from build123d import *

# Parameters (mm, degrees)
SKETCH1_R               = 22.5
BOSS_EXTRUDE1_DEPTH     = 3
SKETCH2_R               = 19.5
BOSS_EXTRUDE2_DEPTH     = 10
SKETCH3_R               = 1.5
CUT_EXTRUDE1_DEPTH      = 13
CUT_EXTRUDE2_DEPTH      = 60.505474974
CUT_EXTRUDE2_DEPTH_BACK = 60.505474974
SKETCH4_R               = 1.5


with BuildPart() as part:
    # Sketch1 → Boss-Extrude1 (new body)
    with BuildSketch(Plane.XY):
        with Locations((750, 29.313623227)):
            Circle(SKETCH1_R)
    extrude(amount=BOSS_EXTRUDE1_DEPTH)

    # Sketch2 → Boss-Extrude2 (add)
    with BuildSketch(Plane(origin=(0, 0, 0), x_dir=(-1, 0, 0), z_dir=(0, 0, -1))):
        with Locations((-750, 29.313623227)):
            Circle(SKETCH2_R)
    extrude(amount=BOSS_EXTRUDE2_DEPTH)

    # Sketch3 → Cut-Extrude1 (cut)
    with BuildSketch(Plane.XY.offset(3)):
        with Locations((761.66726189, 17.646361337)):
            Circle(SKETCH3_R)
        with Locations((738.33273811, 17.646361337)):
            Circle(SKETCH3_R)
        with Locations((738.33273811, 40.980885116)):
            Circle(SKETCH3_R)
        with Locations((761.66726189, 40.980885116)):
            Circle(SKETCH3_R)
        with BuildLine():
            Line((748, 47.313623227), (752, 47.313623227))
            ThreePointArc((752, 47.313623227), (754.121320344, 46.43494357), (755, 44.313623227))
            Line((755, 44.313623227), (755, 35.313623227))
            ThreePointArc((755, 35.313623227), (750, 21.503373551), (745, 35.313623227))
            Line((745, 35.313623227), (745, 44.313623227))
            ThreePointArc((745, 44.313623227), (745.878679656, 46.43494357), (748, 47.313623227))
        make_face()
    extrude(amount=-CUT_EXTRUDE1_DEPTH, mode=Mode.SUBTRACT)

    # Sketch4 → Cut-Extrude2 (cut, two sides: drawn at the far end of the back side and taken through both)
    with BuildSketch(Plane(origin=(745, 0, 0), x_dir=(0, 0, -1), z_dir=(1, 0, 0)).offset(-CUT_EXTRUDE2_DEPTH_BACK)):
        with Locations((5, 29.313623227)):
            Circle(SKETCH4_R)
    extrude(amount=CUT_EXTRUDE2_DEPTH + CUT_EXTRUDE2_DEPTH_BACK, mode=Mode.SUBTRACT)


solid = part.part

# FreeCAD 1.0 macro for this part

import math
import FreeCAD as App
import Part
import Sketcher
Q = App.Units.Quantity

doc = App.newDocument("Part")
body = doc.addObject("PartDesign::Body", "Body")

sketch1 = doc.addObject("Sketcher::SketchObject", "Sketch")
body.addObject(sketch1)
sketch1.AttachmentSupport = (doc.XY_Plane, [""])
sketch1.MapMode = "FlatFace"
sketch1.addGeometry(Part.Circle(App.Vector(750, 29, 0), App.Vector(0, 0, 1), 22), False)
sketch1.addConstraint([
    Sketcher.Constraint("Diameter", 0, Q("45 mm")),
    Sketcher.Constraint("DistanceX", -1, 1, 0, 3, Q("750 mm")),
    Sketcher.Constraint("DistanceY", -1, 1, 0, 3, Q("29.313623 mm")),
])
pad1 = doc.addObject("PartDesign::Pad", "Pad")
body.addObject(pad1)
pad1.Profile = sketch1
pad1.Length = 3

sketch2 = doc.addObject("Sketcher::SketchObject", "Sketch001")
body.addObject(sketch2)
sketch2.AttachmentSupport = (doc.XY_Plane, [""])
sketch2.MapMode = "FlatFace"
sketch2.addGeometry(Part.Circle(App.Vector(750, 29, 0), App.Vector(0, 0, 1), 20), False)
sketch2.addConstraint([
    Sketcher.Constraint("Diameter", 0, Q("39 mm")),
    Sketcher.Constraint("DistanceX", -1, 1, 0, 3, Q("750 mm")),
    Sketcher.Constraint("DistanceY", -1, 1, 0, 3, Q("29.313623 mm")),
])
pad2 = doc.addObject("PartDesign::Pad", "Pad001")
body.addObject(pad2)
pad2.Profile = sketch2
pad2.Length = 10
pad2.Reversed = True

sketch3 = doc.addObject("Sketcher::SketchObject", "Sketch002")
body.addObject(sketch3)
sketch3.AttachmentSupport = (doc.XY_Plane, [""])
sketch3.MapMode = "FlatFace"
sketch3.AttachmentOffset = App.Placement(App.Vector(0, 0, 3), App.Rotation())
sketch3.addGeometry([
    Part.Circle(App.Vector(761.7, 17.6, 0), App.Vector(0, 0, 1), 1.5),
    Part.Circle(App.Vector(738.3, 17.6, 0), App.Vector(0, 0, 1), 1.5),
    Part.Circle(App.Vector(738.3, 41, 0), App.Vector(0, 0, 1), 1.5),
    Part.Circle(App.Vector(761.7, 41, 0), App.Vector(0, 0, 1), 1.5),
    Part.LineSegment(App.Vector(752, 47.3, 0), App.Vector(748, 47.3, 0)),
    Part.ArcOfCircle(Part.Circle(App.Vector(748, 44.3, 0), App.Vector(0, 0, 1), 3), math.radians(90), math.radians(180)),
    Part.LineSegment(App.Vector(745, 44.3, 0), App.Vector(745, 35.3, 0)),
    Part.ArcOfCircle(Part.Circle(App.Vector(750, 29.3, 0), App.Vector(0, 0, 1), 7.8), math.radians(130), math.radians(410)),
    Part.LineSegment(App.Vector(755, 35.3, 0), App.Vector(755, 44.3, 0)),
    Part.ArcOfCircle(Part.Circle(App.Vector(752, 44.3, 0), App.Vector(0, 0, 1), 3), math.radians(0), math.radians(90)),
], False)
sketch3.addConstraint([
    Sketcher.Constraint("Tangent", 4, 2, 5, 1),
    Sketcher.Constraint("Tangent", 5, 2, 6, 1),
    Sketcher.Constraint("Coincident", 6, 2, 7, 1),
    Sketcher.Constraint("Coincident", 7, 2, 8, 1),
    Sketcher.Constraint("Tangent", 8, 2, 9, 1),
    Sketcher.Constraint("Tangent", 9, 2, 4, 1),
    Sketcher.Constraint("Horizontal", 4),
    Sketcher.Constraint("Vertical", 6),
    Sketcher.Constraint("Vertical", 8),
    Sketcher.Constraint("Equal", 0, 1),
    Sketcher.Constraint("Equal", 1, 2),
    Sketcher.Constraint("Equal", 2, 3),
    Sketcher.Constraint("Equal", 5, 9),
    Sketcher.Constraint("Horizontal", 0, 3, 1, 3),
    Sketcher.Constraint("Horizontal", 2, 3, 3, 3),
    Sketcher.Constraint("Horizontal", 6, 2, 7, 2),
    Sketcher.Constraint("Vertical", 1, 3, 2, 3),
    Sketcher.Constraint("Vertical", 0, 3, 3, 3),
    Sketcher.Constraint("Diameter", 0, Q("3 mm")),
    Sketcher.Constraint("Radius", 5, Q("3 mm")),
    Sketcher.Constraint("DistanceX", 4, 2, 4, 1, Q("4 mm")),
    Sketcher.Constraint("DistanceY", 6, 2, 6, 1, Q("9 mm")),
    Sketcher.Constraint("DistanceX", -1, 1, 5, 3, Q("748 mm")),
    Sketcher.Constraint("DistanceY", 7, 3, 5, 3, Q("15 mm")),
    Sketcher.Constraint("DistanceX", -1, 1, 0, 3, Q("761.667262 mm")),
    Sketcher.Constraint("DistanceY", -1, 1, 0, 3, Q("17.646361 mm")),
    Sketcher.Constraint("DistanceX", -1, 1, 1, 3, Q("738.332738 mm")),
    Sketcher.Constraint("DistanceY", 2, 3, 5, 3, Q("3.332738 mm")),
    Sketcher.Constraint("DistanceY", 1, 3, 5, 3, Q("26.667262 mm")),
])
pocket1 = doc.addObject("PartDesign::Pocket", "Pocket")
body.addObject(pocket1)
pocket1.Profile = sketch3
pocket1.Length = 13

sketch4 = doc.addObject("Sketcher::SketchObject", "Sketch003")
body.addObject(sketch4)
sketch4.AttachmentSupport = (doc.YZ_Plane, [""])
sketch4.MapMode = "FlatFace"
sketch4.AttachmentOffset = App.Placement(App.Vector(0, 0, 745), App.Rotation())
sketch4.addGeometry(Part.Circle(App.Vector(29.3, -5, 0), App.Vector(0, 0, 1), 1.5), False)
sketch4.addConstraint([
    Sketcher.Constraint("Diameter", 0, Q("3 mm")),
    Sketcher.Constraint("DistanceY", 0, 3, -1, 1, Q("5 mm")),
    Sketcher.Constraint("DistanceX", -1, 1, 0, 3, Q("29.313623 mm")),
])
pocket2 = doc.addObject("PartDesign::Pocket", "Pocket001")
body.addObject(pocket2)
pocket2.Profile = sketch4
pocket2.Type = "ThroughAll"
pocket2.Midplane = True

doc.recompute()
